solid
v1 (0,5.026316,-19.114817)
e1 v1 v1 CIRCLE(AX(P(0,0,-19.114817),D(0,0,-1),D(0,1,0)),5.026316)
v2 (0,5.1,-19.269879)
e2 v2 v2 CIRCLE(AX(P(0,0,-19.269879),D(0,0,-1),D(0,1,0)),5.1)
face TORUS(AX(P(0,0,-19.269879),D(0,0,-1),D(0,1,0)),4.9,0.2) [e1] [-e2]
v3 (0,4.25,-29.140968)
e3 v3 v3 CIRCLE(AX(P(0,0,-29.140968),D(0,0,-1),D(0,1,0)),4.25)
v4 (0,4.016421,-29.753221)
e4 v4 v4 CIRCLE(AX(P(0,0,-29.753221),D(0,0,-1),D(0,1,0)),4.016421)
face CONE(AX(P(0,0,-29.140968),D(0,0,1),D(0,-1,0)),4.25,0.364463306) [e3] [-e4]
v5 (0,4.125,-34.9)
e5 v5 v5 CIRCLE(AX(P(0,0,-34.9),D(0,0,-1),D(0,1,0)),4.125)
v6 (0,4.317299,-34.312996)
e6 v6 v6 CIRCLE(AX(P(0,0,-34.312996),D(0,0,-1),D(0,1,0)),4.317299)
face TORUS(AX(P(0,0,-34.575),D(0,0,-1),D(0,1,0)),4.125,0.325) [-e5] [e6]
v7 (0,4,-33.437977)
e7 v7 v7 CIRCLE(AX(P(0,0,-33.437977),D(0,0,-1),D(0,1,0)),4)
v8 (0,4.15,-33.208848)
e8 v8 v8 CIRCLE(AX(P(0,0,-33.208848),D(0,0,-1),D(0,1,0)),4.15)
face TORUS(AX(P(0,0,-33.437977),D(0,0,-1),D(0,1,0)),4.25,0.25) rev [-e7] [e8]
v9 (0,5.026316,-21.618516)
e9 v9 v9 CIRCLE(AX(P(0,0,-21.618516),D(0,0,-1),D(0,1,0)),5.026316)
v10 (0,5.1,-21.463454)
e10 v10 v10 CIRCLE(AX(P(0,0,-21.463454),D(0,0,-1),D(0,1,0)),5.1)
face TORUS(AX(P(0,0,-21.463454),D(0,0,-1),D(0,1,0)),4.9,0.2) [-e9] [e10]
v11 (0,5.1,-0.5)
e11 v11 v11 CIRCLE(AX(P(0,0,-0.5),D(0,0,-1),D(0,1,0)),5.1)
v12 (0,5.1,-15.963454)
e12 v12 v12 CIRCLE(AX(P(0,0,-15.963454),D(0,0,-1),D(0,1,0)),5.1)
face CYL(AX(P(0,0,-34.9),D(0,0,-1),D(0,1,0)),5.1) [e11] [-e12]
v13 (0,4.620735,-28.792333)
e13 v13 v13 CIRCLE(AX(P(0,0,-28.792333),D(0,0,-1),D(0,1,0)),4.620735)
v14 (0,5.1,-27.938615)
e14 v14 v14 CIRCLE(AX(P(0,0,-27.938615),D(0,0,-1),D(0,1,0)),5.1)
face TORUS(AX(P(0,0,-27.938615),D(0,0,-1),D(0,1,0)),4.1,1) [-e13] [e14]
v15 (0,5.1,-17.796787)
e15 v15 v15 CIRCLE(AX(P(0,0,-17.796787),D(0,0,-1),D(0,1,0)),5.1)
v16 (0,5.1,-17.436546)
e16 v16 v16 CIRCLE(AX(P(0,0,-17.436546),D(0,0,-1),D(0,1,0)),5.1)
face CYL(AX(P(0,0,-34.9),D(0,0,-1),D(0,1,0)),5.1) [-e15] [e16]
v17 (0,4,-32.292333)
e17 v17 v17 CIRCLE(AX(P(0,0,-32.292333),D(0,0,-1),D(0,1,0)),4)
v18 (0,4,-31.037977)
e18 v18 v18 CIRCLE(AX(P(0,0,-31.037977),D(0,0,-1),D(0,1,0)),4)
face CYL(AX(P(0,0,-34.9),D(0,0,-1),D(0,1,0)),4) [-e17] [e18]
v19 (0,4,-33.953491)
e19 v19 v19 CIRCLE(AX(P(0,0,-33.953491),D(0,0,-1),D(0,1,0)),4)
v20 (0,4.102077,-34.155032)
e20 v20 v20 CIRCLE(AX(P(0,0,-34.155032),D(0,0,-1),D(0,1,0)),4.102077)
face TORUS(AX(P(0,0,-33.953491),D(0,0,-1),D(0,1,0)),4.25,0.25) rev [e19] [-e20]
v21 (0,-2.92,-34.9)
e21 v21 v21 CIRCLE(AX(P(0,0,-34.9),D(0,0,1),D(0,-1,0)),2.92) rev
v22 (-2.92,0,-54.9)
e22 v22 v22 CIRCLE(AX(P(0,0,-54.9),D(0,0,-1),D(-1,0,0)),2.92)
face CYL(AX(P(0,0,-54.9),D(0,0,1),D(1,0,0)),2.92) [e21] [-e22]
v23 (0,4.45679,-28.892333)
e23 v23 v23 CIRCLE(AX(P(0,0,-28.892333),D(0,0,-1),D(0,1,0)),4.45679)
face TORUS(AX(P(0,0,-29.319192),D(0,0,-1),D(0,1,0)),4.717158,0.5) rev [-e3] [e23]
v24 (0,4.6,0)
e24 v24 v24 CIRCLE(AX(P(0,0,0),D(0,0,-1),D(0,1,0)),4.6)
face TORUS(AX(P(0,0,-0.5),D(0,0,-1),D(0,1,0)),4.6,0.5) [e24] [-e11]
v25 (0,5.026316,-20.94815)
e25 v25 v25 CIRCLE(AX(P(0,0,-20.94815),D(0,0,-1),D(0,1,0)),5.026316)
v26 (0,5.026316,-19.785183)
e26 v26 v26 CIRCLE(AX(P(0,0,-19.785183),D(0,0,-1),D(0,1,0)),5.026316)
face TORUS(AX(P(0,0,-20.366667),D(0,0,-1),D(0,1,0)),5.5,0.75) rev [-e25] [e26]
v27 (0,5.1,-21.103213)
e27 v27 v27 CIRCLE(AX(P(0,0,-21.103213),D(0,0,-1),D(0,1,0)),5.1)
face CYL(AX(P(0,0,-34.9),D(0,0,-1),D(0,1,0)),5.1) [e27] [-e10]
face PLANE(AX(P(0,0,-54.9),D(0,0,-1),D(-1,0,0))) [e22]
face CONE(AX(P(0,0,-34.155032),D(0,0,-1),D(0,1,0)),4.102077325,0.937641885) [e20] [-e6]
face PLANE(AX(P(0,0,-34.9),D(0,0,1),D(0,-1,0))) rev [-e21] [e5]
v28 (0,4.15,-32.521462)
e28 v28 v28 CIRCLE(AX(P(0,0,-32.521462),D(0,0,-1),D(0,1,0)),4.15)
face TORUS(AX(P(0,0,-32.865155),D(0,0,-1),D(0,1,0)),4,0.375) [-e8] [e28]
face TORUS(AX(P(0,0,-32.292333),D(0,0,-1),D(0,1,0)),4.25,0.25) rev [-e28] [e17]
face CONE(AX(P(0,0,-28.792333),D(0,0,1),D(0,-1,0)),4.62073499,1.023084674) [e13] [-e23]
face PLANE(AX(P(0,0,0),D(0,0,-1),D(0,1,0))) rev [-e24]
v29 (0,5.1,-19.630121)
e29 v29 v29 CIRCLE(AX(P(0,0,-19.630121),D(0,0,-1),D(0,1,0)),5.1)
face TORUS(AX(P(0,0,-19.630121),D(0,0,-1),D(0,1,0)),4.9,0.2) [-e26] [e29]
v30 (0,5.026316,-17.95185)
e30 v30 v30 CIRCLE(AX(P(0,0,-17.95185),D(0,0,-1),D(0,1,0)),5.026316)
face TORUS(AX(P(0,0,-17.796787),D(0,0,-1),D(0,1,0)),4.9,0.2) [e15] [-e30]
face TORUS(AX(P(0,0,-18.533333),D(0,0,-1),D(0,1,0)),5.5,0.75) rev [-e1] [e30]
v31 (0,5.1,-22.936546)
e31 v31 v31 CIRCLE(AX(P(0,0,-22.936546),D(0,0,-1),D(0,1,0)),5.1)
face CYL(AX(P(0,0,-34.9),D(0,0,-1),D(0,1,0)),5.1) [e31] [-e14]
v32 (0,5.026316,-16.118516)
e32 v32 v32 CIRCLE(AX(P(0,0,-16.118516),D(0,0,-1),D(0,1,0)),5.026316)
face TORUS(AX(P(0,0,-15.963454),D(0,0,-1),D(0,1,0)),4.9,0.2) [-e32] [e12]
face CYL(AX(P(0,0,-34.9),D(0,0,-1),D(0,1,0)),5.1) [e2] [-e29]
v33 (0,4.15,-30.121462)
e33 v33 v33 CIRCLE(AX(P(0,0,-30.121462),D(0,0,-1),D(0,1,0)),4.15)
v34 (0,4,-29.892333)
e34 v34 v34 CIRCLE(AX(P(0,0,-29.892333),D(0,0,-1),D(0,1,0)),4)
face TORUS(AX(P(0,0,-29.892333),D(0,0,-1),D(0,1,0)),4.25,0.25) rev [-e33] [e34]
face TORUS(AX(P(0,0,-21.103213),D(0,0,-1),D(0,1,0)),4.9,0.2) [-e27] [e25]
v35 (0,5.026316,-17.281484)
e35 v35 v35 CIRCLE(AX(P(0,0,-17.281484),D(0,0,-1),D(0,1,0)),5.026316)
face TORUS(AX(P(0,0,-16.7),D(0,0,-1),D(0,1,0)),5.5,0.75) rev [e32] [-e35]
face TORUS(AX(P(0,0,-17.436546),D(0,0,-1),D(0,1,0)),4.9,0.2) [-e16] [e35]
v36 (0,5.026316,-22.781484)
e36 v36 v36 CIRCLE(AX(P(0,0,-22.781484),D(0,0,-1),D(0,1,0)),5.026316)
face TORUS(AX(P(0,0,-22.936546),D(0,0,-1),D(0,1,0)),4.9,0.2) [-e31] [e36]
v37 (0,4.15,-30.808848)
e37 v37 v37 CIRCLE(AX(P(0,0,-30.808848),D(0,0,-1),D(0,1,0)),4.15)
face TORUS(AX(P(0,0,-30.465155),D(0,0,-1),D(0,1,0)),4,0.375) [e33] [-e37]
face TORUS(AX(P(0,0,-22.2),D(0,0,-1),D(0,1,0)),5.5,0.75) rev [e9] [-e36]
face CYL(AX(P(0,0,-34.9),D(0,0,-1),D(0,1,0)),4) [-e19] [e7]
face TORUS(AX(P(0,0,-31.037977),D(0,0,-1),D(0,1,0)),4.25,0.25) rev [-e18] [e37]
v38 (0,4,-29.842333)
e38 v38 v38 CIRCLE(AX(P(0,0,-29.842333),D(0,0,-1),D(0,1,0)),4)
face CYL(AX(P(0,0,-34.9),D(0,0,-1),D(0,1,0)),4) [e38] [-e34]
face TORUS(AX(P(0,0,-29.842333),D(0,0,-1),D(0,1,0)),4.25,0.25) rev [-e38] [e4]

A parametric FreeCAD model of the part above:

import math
import FreeCAD as App
import Part
import Sketcher
Q = App.Units.Quantity

doc = App.newDocument("Part")
body = doc.addObject("PartDesign::Body", "Body")

# Sketch on YZ plane
sketch1 = doc.addObject("Sketcher::SketchObject", "Sketch")
body.addObject(sketch1)
sketch1.AttachmentSupport = (doc.YZ_Plane, [""])
sketch1.MapMode = "FlatFace"
sketch1.addGeometry(Part.LineSegment(App.Vector(4.6, 0, 0), App.Vector(0, 0, 0)), False)
sketch1.addGeometry(Part.LineSegment(App.Vector(0, 0, 0), App.Vector(0, -34.9, 0)), False)
sketch1.addGeometry(Part.LineSegment(App.Vector(0, -34.9, 0), App.Vector(4.12, -34.9, 0)), False)
sketch1.addGeometry(Part.ArcOfCircle(Part.Circle(App.Vector(4.12, -34.58, 0), App.Vector(0, 0, 1), 0.33), math.radians(-90), math.radians(54)), False)
sketch1.addGeometry(Part.LineSegment(App.Vector(4.32, -34.31, 0), App.Vector(4.1, -34.16, 0)), False)
sketch1.addGeometry(Part.ArcOfCircle(Part.Circle(App.Vector(4.25, -33.95, 0), App.Vector(0, 0, 1), 0.25), math.radians(180), math.radians(234)), False)
sketch1.addGeometry(Part.LineSegment(App.Vector(4, -33.95, 0), App.Vector(4, -33.44, 0)), False)
sketch1.addGeometry(Part.ArcOfCircle(Part.Circle(App.Vector(4.25, -33.44, 0), App.Vector(0, 0, 1), 0.25), math.radians(114), math.radians(180)), False)
sketch1.addGeometry(Part.ArcOfCircle(Part.Circle(App.Vector(4, -32.87, 0), App.Vector(0, 0, 1), 0.38), math.radians(-66), math.radians(66)), False)
sketch1.addGeometry(Part.ArcOfCircle(Part.Circle(App.Vector(4.25, -32.29, 0), App.Vector(0, 0, 1), 0.25), math.radians(180), math.radians(246)), False)
sketch1.addGeometry(Part.LineSegment(App.Vector(4, -32.29, 0), App.Vector(4, -31.04, 0)), False)
sketch1.addGeometry(Part.ArcOfCircle(Part.Circle(App.Vector(4.25, -31.04, 0), App.Vector(0, 0, 1), 0.25), math.radians(114), math.radians(180)), False)
sketch1.addGeometry(Part.ArcOfCircle(Part.Circle(App.Vector(4, -30.47, 0), App.Vector(0, 0, 1), 0.38), math.radians(-66), math.radians(66)), False)
sketch1.addGeometry(Part.ArcOfCircle(Part.Circle(App.Vector(4.25, -29.89, 0), App.Vector(0, 0, 1), 0.25), math.radians(180), math.radians(246)), False)
sketch1.addGeometry(Part.LineSegment(App.Vector(4, -29.89, 0), App.Vector(4, -29.84, 0)), False)
sketch1.addGeometry(Part.ArcOfCircle(Part.Circle(App.Vector(4.25, -29.84, 0), App.Vector(0, 0, 1), 0.25), math.radians(159), math.radians(180)), False)
sketch1.addGeometry(Part.LineSegment(App.Vector(4.02, -29.75, 0), App.Vector(4.25, -29.14, 0)), False)
sketch1.addGeometry(Part.ArcOfCircle(Part.Circle(App.Vector(4.72, -29.32, 0), App.Vector(0, 0, 1), 0.5), math.radians(121), math.radians(159)), False)
sketch1.addGeometry(Part.LineSegment(App.Vector(4.46, -28.89, 0), App.Vector(4.62, -28.79, 0)), False)
sketch1.addGeometry(Part.ArcOfCircle(Part.Circle(App.Vector(4.1, -27.94, 0), App.Vector(0, 0, 1), 1), math.radians(-59), math.radians(0)), False)
sketch1.addGeometry(Part.LineSegment(App.Vector(5.1, -27.94, 0), App.Vector(5.1, -22.94, 0)), False)
sketch1.addGeometry(Part.ArcOfCircle(Part.Circle(App.Vector(4.9, -22.94, 0), App.Vector(0, 0, 1), 0.2), math.radians(0), math.radians(51)), False)
sketch1.addGeometry(Part.ArcOfCircle(Part.Circle(App.Vector(5.5, -22.2, 0), App.Vector(0, 0, 1), 0.75), math.radians(129), math.radians(231)), False)
sketch1.addGeometry(Part.ArcOfCircle(Part.Circle(App.Vector(4.9, -21.46, 0), App.Vector(0, 0, 1), 0.2), math.radians(-51), math.radians(0)), False)
sketch1.addGeometry(Part.LineSegment(App.Vector(5.1, -21.46, 0), App.Vector(5.1, -21.1, 0)), False)
sketch1.addGeometry(Part.ArcOfCircle(Part.Circle(App.Vector(4.9, -21.1, 0), App.Vector(0, 0, 1), 0.2), math.radians(0), math.radians(51)), False)
sketch1.addGeometry(Part.ArcOfCircle(Part.Circle(App.Vector(5.5, -20.37, 0), App.Vector(0, 0, 1), 0.75), math.radians(129), math.radians(231)), False)
sketch1.addGeometry(Part.ArcOfCircle(Part.Circle(App.Vector(4.9, -19.63, 0), App.Vector(0, 0, 1), 0.2), math.radians(-51), math.radians(0)), False)
sketch1.addGeometry(Part.LineSegment(App.Vector(5.1, -19.63, 0), App.Vector(5.1, -19.27, 0)), False)
sketch1.addGeometry(Part.ArcOfCircle(Part.Circle(App.Vector(4.9, -19.27, 0), App.Vector(0, 0, 1), 0.2), math.radians(0), math.radians(51)), False)
sketch1.addGeometry(Part.ArcOfCircle(Part.Circle(App.Vector(5.5, -18.53, 0), App.Vector(0, 0, 1), 0.75), math.radians(129), math.radians(231)), False)
sketch1.addGeometry(Part.ArcOfCircle(Part.Circle(App.Vector(4.9, -17.8, 0), App.Vector(0, 0, 1), 0.2), math.radians(-51), math.radians(0)), False)
sketch1.addGeometry(Part.LineSegment(App.Vector(5.1, -17.8, 0), App.Vector(5.1, -17.44, 0)), False)
sketch1.addGeometry(Part.ArcOfCircle(Part.Circle(App.Vector(4.9, -17.44, 0), App.Vector(0, 0, 1), 0.2), math.radians(0), math.radians(51)), False)
sketch1.addGeometry(Part.ArcOfCircle(Part.Circle(App.Vector(5.5, -16.7, 0), App.Vector(0, 0, 1), 0.75), math.radians(129), math.radians(231)), False)
sketch1.addGeometry(Part.ArcOfCircle(Part.Circle(App.Vector(4.9, -15.96, 0), App.Vector(0, 0, 1), 0.2), math.radians(-51), math.radians(0)), False)
sketch1.addGeometry(Part.LineSegment(App.Vector(5.1, -15.96, 0), App.Vector(5.1, -0.5, 0)), False)
sketch1.addGeometry(Part.ArcOfCircle(Part.Circle(App.Vector(4.6, -0.5, 0), App.Vector(0, 0, 1), 0.5), math.radians(0), math.radians(90)), False)
sketch1.addConstraint(Sketcher.Constraint("Coincident", 0, 2, 1, 1))
sketch1.addConstraint(Sketcher.Constraint("Coincident", 1, 2, 2, 1))
sketch1.addConstraint(Sketcher.Constraint("Tangent", 2, 2, 3, 1))
sketch1.addConstraint(Sketcher.Constraint("Tangent", 3, 2, 4, 1))
sketch1.addConstraint(Sketcher.Constraint("Tangent", 4, 2, 5, 2))
sketch1.addConstraint(Sketcher.Constraint("Tangent", 5, 1, 6, 1))
sketch1.addConstraint(Sketcher.Constraint("Tangent", 6, 2, 7, 2))
sketch1.addConstraint(Sketcher.Constraint("Tangent", 7, 1, 8, 1))
sketch1.addConstraint(Sketcher.Constraint("Tangent", 8, 2, 9, 2))
sketch1.addConstraint(Sketcher.Constraint("Tangent", 9, 1, 10, 1))
sketch1.addConstraint(Sketcher.Constraint("Tangent", 10, 2, 11, 2))
sketch1.addConstraint(Sketcher.Constraint("Tangent", 11, 1, 12, 1))
sketch1.addConstraint(Sketcher.Constraint("Tangent", 12, 2, 13, 2))
sketch1.addConstraint(Sketcher.Constraint("Tangent", 13, 1, 14, 1))
sketch1.addConstraint(Sketcher.Constraint("Tangent", 14, 2, 15, 2))
sketch1.addConstraint(Sketcher.Constraint("Tangent", 15, 1, 16, 1))
sketch1.addConstraint(Sketcher.Constraint("Tangent", 16, 2, 17, 2))
sketch1.addConstraint(Sketcher.Constraint("Tangent", 17, 1, 18, 1))
sketch1.addConstraint(Sketcher.Constraint("Tangent", 18, 2, 19, 1))
sketch1.addConstraint(Sketcher.Constraint("Tangent", 19, 2, 20, 1))
sketch1.addConstraint(Sketcher.Constraint("Tangent", 20, 2, 21, 1))
sketch1.addConstraint(Sketcher.Constraint("Tangent", 21, 2, 22, 2))
sketch1.addConstraint(Sketcher.Constraint("Tangent", 22, 1, 23, 1))
sketch1.addConstraint(Sketcher.Constraint("Tangent", 23, 2, 24, 1))
sketch1.addConstraint(Sketcher.Constraint("Tangent", 24, 2, 25, 1))
sketch1.addConstraint(Sketcher.Constraint("Tangent", 25, 2, 26, 2))
sketch1.addConstraint(Sketcher.Constraint("Tangent", 26, 1, 27, 1))
sketch1.addConstraint(Sketcher.Constraint("Tangent", 27, 2, 28, 1))
sketch1.addConstraint(Sketcher.Constraint("Tangent", 28, 2, 29, 1))
sketch1.addConstraint(Sketcher.Constraint("Tangent", 29, 2, 30, 2))
sketch1.addConstraint(Sketcher.Constraint("Tangent", 30, 1, 31, 1))
sketch1.addConstraint(Sketcher.Constraint("Tangent", 31, 2, 32, 1))
sketch1.addConstraint(Sketcher.Constraint("Tangent", 32, 2, 33, 1))
sketch1.addConstraint(Sketcher.Constraint("Tangent", 33, 2, 34, 2))
sketch1.addConstraint(Sketcher.Constraint("Tangent", 34, 1, 35, 1))
sketch1.addConstraint(Sketcher.Constraint("Tangent", 35, 2, 36, 1))
sketch1.addConstraint(Sketcher.Constraint("Tangent", 36, 2, 37, 1))
sketch1.addConstraint(Sketcher.Constraint("Tangent", 37, 2, 0, 1))
sketch1.addConstraint(Sketcher.Constraint("Horizontal", 0))
sketch1.addConstraint(Sketcher.Constraint("Vertical", 1))
sketch1.addConstraint(Sketcher.Constraint("Horizontal", 2))
sketch1.addConstraint(Sketcher.Constraint("Vertical", 6))
sketch1.addConstraint(Sketcher.Constraint("Vertical", 10))
sketch1.addConstraint(Sketcher.Constraint("Vertical", 14))
sketch1.addConstraint(Sketcher.Constraint("Vertical", 20))
sketch1.addConstraint(Sketcher.Constraint("Vertical", 24))
sketch1.addConstraint(Sketcher.Constraint("Vertical", 28))
sketch1.addConstraint(Sketcher.Constraint("Vertical", 32))
sketch1.addConstraint(Sketcher.Constraint("Vertical", 36))
sketch1.addConstraint(Sketcher.Constraint("Coincident", 0, 2, -1, 1))
sketch1.addConstraint(Sketcher.Constraint("Equal", 5, 7))
sketch1.addConstraint(Sketcher.Constraint("Equal", 7, 9))
sketch1.addConstraint(Sketcher.Constraint("Equal", 9, 11))
sketch1.addConstraint(Sketcher.Constraint("Equal", 8, 12))
sketch1.addConstraint(Sketcher.Constraint("Equal", 11, 13))
sketch1.addConstraint(Sketcher.Constraint("Equal", 13, 15))
sketch1.addConstraint(Sketcher.Constraint("Equal", 21, 23))
sketch1.addConstraint(Sketcher.Constraint("Equal", 23, 25))
sketch1.addConstraint(Sketcher.Constraint("Equal", 22, 26))
sketch1.addConstraint(Sketcher.Constraint("Equal", 25, 27))
sketch1.addConstraint(Sketcher.Constraint("Equal", 27, 29))
sketch1.addConstraint(Sketcher.Constraint("Equal", 26, 30))
sketch1.addConstraint(Sketcher.Constraint("Equal", 29, 31))
sketch1.addConstraint(Sketcher.Constraint("Equal", 31, 33))
sketch1.addConstraint(Sketcher.Constraint("Equal", 30, 34))
sketch1.addConstraint(Sketcher.Constraint("Equal", 33, 35))
sketch1.addConstraint(Sketcher.Constraint("Equal", 17, 37))
sketch1.addConstraint(Sketcher.Constraint("Vertical", 7, 3, 9, 3))
sketch1.addConstraint(Sketcher.Constraint("Vertical", 8, 3, 12, 3))
sketch1.addConstraint(Sketcher.Constraint("Vertical", 11, 3, 13, 3))
sketch1.addConstraint(Sketcher.Constraint("Vertical", 21, 3, 23, 3))
sketch1.addConstraint(Sketcher.Constraint("Vertical", 22, 3, 26, 3))
sketch1.addConstraint(Sketcher.Constraint("Vertical", 25, 3, 27, 3))
sketch1.addConstraint(Sketcher.Constraint("Vertical", 26, 3, 30, 3))
sketch1.addConstraint(Sketcher.Constraint("Vertical", 29, 3, 31, 3))
sketch1.addConstraint(Sketcher.Constraint("Vertical", 30, 3, 34, 3))
sketch1.addConstraint(Sketcher.Constraint("Vertical", 33, 3, 35, 3))
sketch1.addConstraint(Sketcher.Constraint("Vertical", 12, 3, 5, 1))
sketch1.addConstraint(Sketcher.Constraint("Vertical", 15, 3, 16, 2))
sketch1.addConstraint(Sketcher.Constraint("Equal", 24, 28))
sketch1.addConstraint(Sketcher.Constraint("Equal", 28, 32))
sketch1.addConstraint(Sketcher.Constraint("Radius", 19, Q("1 mm")))
sketch1.addConstraint(Sketcher.Constraint("Radius", 17, Q("0.5 mm")))
sketch1.addConstraint(Sketcher.Constraint("Radius", 21, Q("0.2 mm")))
sketch1.addConstraint(Sketcher.Constraint("Radius", 5, Q("0.25 mm")))
sketch1.addConstraint(Sketcher.Constraint("Radius", 22, Q("0.75 mm")))
sketch1.addConstraint(Sketcher.Constraint("DistanceX", 0, 2, 0, 1, Q("4.6 mm")))
sketch1.addConstraint(Sketcher.Constraint("DistanceY", 1, 2, 1, 1, Q("34.9 mm")))
sketch1.addConstraint(Sketcher.Constraint("DistanceX", -1, 1, 8, 3, Q("4 mm")))
sketch1.addConstraint(Sketcher.Constraint("Radius", 3, Q("0.325 mm")))
sketch1.addConstraint(Sketcher.Constraint("Radius", 8, Q("0.375 mm")))
sketch1.addConstraint(Sketcher.Constraint("DistanceY", 14, 1, 14, 2, Q("0.05 mm")))
sketch1.addConstraint(Sketcher.Constraint("DistanceX", -1, 1, 22, 3, Q("5.5 mm")))
sketch1.addConstraint(Sketcher.Constraint("DistanceY", 22, 3, -1, 1, Q("22.2 mm")))
sketch1.addConstraint(Sketcher.Constraint("DistanceY", 34, 3, -1, 1, Q("16.7 mm")))
sketch1.addConstraint(Sketcher.Constraint("DistanceX", 2, 1, 2, 2, Q("4.125 mm")))
sketch1.addConstraint(Sketcher.Constraint("DistanceY", 20, 1, 20, 2, Q("5.002069 mm")))
sketch1.addConstraint(Sketcher.Constraint("DistanceX", -1, 1, 3, 2, Q("4.317299 mm")))
sketch1.addConstraint(Sketcher.Constraint("DistanceY", 6, 1, 6, 2, Q("0.515514 mm")))
sketch1.addConstraint(Sketcher.Constraint("DistanceY", 10, 1, 10, 2, Q("1.254356 mm")))
sketch1.addConstraint(Sketcher.Constraint("DistanceX", -1, 1, 15, 1, Q("4.016421 mm")))
revolution = doc.addObject("PartDesign::Revolution", "Revolution")
body.addObject(revolution)
revolution.Profile = sketch1
revolution.ReferenceAxis = (sketch1, ["V_Axis"])
revolution.Angle = 360

# Sketch on XY plane
sketch2 = doc.addObject("Sketcher::SketchObject", "Sketch001")
body.addObject(sketch2)
sketch2.AttachmentSupport = (doc.XY_Plane, [""])
sketch2.MapMode = "FlatFace"
sketch2.AttachmentOffset = App.Placement(App.Vector(0, 0, -34.9), App.Rotation())
sketch2.addGeometry(Part.Circle(App.Vector(0, 0, 0), App.Vector(0, 0, 1), 2.9), False)
sketch2.addConstraint(Sketcher.Constraint("Coincident", 0, 3, -1, 1))
sketch2.addConstraint(Sketcher.Constraint("Diameter", 0, Q("5.84 mm")))
pad1 = doc.addObject("PartDesign::Pad", "Pad")
body.addObject(pad1)
pad1.Profile = sketch2
pad1.Length = 20
pad1.Reversed = True

doc.recompute()
